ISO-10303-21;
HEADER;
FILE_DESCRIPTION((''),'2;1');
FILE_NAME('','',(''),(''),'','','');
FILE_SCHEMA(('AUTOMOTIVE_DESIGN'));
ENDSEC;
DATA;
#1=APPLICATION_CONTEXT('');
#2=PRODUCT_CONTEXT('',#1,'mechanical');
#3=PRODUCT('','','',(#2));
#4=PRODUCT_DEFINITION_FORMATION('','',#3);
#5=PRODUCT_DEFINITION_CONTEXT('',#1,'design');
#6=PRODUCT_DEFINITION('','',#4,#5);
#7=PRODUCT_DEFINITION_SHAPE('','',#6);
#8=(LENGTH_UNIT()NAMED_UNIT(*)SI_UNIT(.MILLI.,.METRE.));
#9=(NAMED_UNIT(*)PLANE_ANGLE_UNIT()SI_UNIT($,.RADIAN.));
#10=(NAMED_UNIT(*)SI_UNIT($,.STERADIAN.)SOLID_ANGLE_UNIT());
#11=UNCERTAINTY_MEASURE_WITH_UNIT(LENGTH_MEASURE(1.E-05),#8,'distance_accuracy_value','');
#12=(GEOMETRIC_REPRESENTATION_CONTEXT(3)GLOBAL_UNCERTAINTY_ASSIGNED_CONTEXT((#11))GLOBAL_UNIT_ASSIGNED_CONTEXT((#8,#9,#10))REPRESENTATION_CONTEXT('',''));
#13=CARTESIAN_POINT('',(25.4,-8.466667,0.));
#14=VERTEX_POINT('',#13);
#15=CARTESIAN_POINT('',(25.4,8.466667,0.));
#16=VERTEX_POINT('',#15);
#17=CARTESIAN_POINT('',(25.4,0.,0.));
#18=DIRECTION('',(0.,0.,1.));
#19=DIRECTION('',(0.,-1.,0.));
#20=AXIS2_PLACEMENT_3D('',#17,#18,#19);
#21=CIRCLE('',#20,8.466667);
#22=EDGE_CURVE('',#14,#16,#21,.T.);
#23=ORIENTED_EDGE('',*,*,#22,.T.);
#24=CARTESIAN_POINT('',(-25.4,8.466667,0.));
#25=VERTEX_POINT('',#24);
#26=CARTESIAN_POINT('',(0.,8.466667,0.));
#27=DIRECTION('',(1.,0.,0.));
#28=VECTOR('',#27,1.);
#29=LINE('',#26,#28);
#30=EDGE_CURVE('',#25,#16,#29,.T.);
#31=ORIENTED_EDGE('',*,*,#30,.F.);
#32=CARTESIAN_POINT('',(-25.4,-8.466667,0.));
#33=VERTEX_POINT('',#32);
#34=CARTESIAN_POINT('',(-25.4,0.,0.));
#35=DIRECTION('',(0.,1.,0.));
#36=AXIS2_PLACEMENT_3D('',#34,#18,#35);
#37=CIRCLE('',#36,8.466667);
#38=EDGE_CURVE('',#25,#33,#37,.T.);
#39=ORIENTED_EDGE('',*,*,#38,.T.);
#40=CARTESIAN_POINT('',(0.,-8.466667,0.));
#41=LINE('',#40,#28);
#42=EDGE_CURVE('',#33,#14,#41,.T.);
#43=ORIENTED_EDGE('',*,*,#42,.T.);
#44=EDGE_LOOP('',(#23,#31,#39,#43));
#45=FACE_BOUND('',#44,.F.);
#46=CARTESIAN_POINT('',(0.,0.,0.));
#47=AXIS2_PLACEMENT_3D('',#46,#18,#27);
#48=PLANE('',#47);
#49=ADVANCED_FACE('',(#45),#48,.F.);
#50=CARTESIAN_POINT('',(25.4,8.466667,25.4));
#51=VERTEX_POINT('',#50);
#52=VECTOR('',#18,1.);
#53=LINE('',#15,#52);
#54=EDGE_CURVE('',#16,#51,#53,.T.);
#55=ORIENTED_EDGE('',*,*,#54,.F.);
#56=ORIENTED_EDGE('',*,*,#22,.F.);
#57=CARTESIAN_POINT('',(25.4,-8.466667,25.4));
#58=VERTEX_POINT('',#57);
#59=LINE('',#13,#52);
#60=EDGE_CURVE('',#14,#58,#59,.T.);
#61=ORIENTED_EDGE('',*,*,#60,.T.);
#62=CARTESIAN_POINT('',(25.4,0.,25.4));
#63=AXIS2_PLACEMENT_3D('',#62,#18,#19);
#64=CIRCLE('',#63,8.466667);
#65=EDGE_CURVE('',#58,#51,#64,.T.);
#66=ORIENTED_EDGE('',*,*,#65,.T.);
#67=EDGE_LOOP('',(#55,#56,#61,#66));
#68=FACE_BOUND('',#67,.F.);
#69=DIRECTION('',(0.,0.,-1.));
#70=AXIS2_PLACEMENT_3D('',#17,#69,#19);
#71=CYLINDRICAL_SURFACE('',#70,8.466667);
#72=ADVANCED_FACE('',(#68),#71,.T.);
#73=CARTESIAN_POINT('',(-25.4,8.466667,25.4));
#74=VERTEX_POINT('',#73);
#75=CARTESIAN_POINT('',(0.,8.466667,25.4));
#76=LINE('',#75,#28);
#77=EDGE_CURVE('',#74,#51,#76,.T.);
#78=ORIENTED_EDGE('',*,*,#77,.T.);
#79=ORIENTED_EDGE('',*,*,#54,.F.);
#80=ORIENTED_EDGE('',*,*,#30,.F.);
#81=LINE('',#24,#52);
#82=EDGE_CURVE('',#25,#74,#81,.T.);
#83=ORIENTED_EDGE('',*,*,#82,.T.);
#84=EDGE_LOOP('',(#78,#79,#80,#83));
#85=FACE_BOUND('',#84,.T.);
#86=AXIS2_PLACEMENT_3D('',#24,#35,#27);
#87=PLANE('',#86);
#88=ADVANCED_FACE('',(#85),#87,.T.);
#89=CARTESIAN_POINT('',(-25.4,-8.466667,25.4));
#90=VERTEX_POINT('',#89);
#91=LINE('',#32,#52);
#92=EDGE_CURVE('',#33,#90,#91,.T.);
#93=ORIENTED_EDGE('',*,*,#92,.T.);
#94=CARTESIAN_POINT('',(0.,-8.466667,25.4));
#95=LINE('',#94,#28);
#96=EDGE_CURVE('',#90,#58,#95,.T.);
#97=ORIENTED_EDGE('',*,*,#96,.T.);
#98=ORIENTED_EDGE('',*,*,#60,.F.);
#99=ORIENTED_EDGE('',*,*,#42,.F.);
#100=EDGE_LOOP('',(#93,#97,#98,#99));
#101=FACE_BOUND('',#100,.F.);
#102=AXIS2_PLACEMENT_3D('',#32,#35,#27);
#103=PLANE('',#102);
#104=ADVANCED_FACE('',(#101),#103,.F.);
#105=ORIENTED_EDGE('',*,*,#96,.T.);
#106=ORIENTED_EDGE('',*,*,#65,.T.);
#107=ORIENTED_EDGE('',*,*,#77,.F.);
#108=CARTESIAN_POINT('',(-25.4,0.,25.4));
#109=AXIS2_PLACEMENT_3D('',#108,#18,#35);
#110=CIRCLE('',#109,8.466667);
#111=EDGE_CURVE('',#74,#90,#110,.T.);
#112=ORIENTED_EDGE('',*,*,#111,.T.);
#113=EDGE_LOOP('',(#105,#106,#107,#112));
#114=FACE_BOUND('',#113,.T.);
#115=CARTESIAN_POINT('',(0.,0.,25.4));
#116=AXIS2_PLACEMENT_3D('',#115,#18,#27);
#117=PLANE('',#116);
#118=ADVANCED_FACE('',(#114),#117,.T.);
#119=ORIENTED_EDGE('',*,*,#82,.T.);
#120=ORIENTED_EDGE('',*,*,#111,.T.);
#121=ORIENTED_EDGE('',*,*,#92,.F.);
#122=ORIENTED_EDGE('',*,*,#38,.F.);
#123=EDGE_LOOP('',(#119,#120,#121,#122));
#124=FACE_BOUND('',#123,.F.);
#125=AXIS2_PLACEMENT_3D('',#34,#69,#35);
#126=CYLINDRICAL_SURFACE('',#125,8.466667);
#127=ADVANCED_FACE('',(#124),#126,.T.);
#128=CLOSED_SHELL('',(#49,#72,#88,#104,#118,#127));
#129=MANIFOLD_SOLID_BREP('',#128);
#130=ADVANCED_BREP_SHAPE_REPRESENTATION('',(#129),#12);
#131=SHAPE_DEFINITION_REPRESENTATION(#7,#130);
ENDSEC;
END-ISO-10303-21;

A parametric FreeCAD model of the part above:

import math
import FreeCAD as App
import Part
import Sketcher
from FreeCAD import Vector
Q = App.Units.Quantity

doc = App.newDocument("Part")
body = doc.addObject("PartDesign::Body", "Body")

# Sketch on XY plane
sketch1 = body.newObject("Sketcher::SketchObject", "Sketch")
sketch1.AttachmentSupport = (doc.getObject("XY_Plane"), [""])
sketch1.MapMode = "FlatFace"
sketch1.addGeometry([
    Part.LineSegment(Vector(-25, -8, 0), Vector(25, -8, 0)),
    Part.ArcOfCircle(Part.Circle(Vector(25, 0, 0), Vector(0, 0, 1), 8), math.radians(-90), math.radians(90)),
    Part.LineSegment(Vector(25, 8, 0), Vector(-25, 8, 0)),
    Part.ArcOfCircle(Part.Circle(Vector(-25, 0, 0), Vector(0, 0, 1), 8), math.radians(90), math.radians(270)),
], False)
sketch1.addConstraint([
    Sketcher.Constraint("Tangent", 0, 2, 1, 1),
    Sketcher.Constraint("Tangent", 1, 2, 2, 1),
    Sketcher.Constraint("Tangent", 2, 2, 3, 1),
    Sketcher.Constraint("Tangent", 3, 2, 0, 1),
    Sketcher.Constraint("Horizontal", 0),
    Sketcher.Constraint("Horizontal", 2),
    Sketcher.Constraint("Symmetric", 1, 3, 3, 3, -1, 1),
    Sketcher.Constraint("DistanceX", 0, 1, 0, 2, Q("2 in")),
    Sketcher.Constraint("Radius", 1, Q("8.466667 mm")),
])
pad1 = body.newObject("PartDesign::Pad", "Pad")
pad1.Profile = sketch1
pad1.Length = Q("1 in")

doc.recompute()
